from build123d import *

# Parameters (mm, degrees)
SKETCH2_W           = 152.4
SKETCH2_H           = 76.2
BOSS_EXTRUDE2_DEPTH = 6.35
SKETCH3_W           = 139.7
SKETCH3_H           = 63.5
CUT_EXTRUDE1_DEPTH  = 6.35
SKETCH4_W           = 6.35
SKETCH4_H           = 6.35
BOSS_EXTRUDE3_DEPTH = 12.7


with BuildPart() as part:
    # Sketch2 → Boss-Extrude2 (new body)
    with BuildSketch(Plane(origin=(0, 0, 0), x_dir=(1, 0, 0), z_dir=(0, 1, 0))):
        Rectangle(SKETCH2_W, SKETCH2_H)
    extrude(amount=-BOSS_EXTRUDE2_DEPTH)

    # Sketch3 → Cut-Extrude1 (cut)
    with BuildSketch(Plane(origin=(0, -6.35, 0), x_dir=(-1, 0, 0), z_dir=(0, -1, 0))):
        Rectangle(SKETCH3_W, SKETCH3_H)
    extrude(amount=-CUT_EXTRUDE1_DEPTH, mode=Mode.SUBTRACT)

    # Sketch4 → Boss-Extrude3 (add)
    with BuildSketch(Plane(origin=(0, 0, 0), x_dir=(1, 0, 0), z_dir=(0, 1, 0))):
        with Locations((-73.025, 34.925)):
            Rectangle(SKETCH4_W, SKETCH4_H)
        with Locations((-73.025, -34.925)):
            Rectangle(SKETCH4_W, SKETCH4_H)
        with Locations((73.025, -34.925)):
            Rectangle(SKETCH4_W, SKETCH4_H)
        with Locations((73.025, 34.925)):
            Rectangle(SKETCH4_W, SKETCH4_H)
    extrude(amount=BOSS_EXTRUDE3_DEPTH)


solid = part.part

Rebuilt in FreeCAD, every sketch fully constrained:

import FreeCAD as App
import Part
import Sketcher

V = App.Vector
Q = App.Units.Quantity


def add_polygon(sketch, points):
    """Adds a closed chain of lines whose ends are joined by coincident constraints."""
    first, n = sketch.GeometryCount, len(points)
    for a, b in zip(points, points[1:] + points[:1]):
        sketch.addGeometry(Part.LineSegment(App.Vector(*a, 0), App.Vector(*b, 0)), False)
    for i in range(n):
        sketch.addConstraint(Sketcher.Constraint("Coincident", first + i, 2, first + (i + 1) % n, 1))

doc = App.newDocument("Part")
params = doc.addObject("Spreadsheet::Sheet", "Params")
for row, (alias, value) in enumerate([
    ("sketch1_width", "6 in"),
    ("sketch1_height", "3 in"),
    ("pad1_length", "0.25 in"),
    ("sketch2_width", "5.5 in"),
    ("sketch2_height", "2.5 in"),
    ("pocket1_length", "0.25 in"),
    ("sketch3_width", "0.25 in"),
    ("pad2_length", "0.5 in"),
], start=1):
    params.set(f"A{row}", alias)
    params.set(f"B{row}", "=" + value)
    params.setAlias(f"B{row}", alias)

body = doc.addObject("PartDesign::Body", "Body")

# Sketch on XZ plane
sketch1 = body.newObject("Sketcher::SketchObject", "Sketch")
sketch1.AttachmentSupport = (doc.getObject("XZ_Plane"), [""])
sketch1.MapMode = "FlatFace"
add_polygon(sketch1, [(-76, -38), (-76, 38), (76, 38), (76, -38)])  # lines 0-3
sketch1.addConstraint([
    Sketcher.Constraint("Vertical", 0),
    Sketcher.Constraint("Horizontal", 1),
    Sketcher.Constraint("Vertical", 2),
    Sketcher.Constraint("Horizontal", 3),
    Sketcher.Constraint("Symmetric", 0, 2, 2, 2, -1, 1),
    Sketcher.Constraint("DistanceX", 1, 1, 1, 2, Q("6 in")),
    Sketcher.Constraint("DistanceY", 0, 1, 0, 2, Q("3 in")),
])
sketch1.setExpression("Constraints[9]", "Params.sketch1_width")
sketch1.setExpression("Constraints[10]", "Params.sketch1_height")
pad1 = body.newObject("PartDesign::Pad", "Pad")
pad1.Profile = sketch1
pad1.setExpression("Length", "Params.pad1_length")

# Sketch on XZ plane
sketch2 = body.newObject("Sketcher::SketchObject", "Sketch001")
sketch2.AttachmentSupport = (doc.getObject("XZ_Plane"), [""])
sketch2.MapMode = "FlatFace"
sketch2.AttachmentOffset = App.Placement(V(0, 0, 0.25 * 25.4), App.Rotation())
add_polygon(sketch2, [(70, -32), (70, 32), (-70, 32), (-70, -32)])  # lines 0-3
sketch2.addConstraint([
    Sketcher.Constraint("Vertical", 0),
    Sketcher.Constraint("Horizontal", 1),
    Sketcher.Constraint("Vertical", 2),
    Sketcher.Constraint("Horizontal", 3),
    Sketcher.Constraint("Symmetric", 0, 2, 2, 2, -1, 1),
    Sketcher.Constraint("DistanceX", 1, 2, 1, 1, Q("5.5 in")),
    Sketcher.Constraint("DistanceY", 0, 1, 0, 2, Q("2.5 in")),
])
sketch2.setExpression("Constraints[9]", "Params.sketch2_width")
sketch2.setExpression("Constraints[10]", "Params.sketch2_height")
pocket1 = body.newObject("PartDesign::Pocket", "Pocket")
pocket1.Profile = sketch2
pocket1.setExpression("Length", "Params.pocket1_length")

# Sketch on XZ plane
sketch3 = body.newObject("Sketcher::SketchObject", "Sketch002")
sketch3.AttachmentSupport = (doc.getObject("XZ_Plane"), [""])
sketch3.MapMode = "FlatFace"
add_polygon(sketch3, [(-76, -38), (-76, -32), (-70, -32), (-70, -38)])  # lines 0-3
add_polygon(sketch3, [(-76, 32), (-76, 38), (-70, 38), (-70, 32)])  # lines 4-7
add_polygon(sketch3, [(70, 32), (70, 38), (76, 38), (76, 32)])  # lines 8-11
add_polygon(sketch3, [(70, -38), (70, -32), (76, -32), (76, -38)])  # lines 12-15
sketch3.addConstraint([
    Sketcher.Constraint("Vertical", 0),
    Sketcher.Constraint("Horizontal", 1),
    Sketcher.Constraint("Vertical", 2),
    Sketcher.Constraint("Horizontal", 3),
    Sketcher.Constraint("Vertical", 4),
    Sketcher.Constraint("Horizontal", 5),
    Sketcher.Constraint("Vertical", 6),
    Sketcher.Constraint("Horizontal", 7),
    Sketcher.Constraint("Vertical", 8),
    Sketcher.Constraint("Horizontal", 9),
    Sketcher.Constraint("Vertical", 10),
    Sketcher.Constraint("Horizontal", 11),
    Sketcher.Constraint("Vertical", 12),
    Sketcher.Constraint("Horizontal", 13),
    Sketcher.Constraint("Vertical", 14),
    Sketcher.Constraint("Horizontal", 15),
    Sketcher.Constraint("Symmetric", 2, 2, 8, 2, -1, 1),
    Sketcher.Constraint("Symmetric", 0, 2, 10, 2, -1, 1),
    Sketcher.Constraint("Symmetric", 6, 2, 12, 2, -1, 1),
    Sketcher.Constraint("Symmetric", 4, 2, 14, 2, -1, 1),
    Sketcher.Constraint("Symmetric", 5, 2, 8, 2, -2),
    Sketcher.Constraint("Symmetric", 7, 2, 10, 2, -2),
    Sketcher.Constraint("Equal", 15, 0),
    Sketcher.Constraint("DistanceX", 0, 2, -1, 1, Q("3 in")),
    Sketcher.Constraint("DistanceY", 3, 2, 4, 2, Q("3 in")),
    Sketcher.Constraint("DistanceX", 1, 1, 1, 2, Q("0.25 in")),
])
sketch3.setExpression("Constraints[41]", "Params.sketch3_width")
pad2 = body.newObject("PartDesign::Pad", "Pad001")
pad2.Profile = sketch3
pad2.setExpression("Length", "Params.pad2_length")
pad2.Reversed = True

doc.recompute()
